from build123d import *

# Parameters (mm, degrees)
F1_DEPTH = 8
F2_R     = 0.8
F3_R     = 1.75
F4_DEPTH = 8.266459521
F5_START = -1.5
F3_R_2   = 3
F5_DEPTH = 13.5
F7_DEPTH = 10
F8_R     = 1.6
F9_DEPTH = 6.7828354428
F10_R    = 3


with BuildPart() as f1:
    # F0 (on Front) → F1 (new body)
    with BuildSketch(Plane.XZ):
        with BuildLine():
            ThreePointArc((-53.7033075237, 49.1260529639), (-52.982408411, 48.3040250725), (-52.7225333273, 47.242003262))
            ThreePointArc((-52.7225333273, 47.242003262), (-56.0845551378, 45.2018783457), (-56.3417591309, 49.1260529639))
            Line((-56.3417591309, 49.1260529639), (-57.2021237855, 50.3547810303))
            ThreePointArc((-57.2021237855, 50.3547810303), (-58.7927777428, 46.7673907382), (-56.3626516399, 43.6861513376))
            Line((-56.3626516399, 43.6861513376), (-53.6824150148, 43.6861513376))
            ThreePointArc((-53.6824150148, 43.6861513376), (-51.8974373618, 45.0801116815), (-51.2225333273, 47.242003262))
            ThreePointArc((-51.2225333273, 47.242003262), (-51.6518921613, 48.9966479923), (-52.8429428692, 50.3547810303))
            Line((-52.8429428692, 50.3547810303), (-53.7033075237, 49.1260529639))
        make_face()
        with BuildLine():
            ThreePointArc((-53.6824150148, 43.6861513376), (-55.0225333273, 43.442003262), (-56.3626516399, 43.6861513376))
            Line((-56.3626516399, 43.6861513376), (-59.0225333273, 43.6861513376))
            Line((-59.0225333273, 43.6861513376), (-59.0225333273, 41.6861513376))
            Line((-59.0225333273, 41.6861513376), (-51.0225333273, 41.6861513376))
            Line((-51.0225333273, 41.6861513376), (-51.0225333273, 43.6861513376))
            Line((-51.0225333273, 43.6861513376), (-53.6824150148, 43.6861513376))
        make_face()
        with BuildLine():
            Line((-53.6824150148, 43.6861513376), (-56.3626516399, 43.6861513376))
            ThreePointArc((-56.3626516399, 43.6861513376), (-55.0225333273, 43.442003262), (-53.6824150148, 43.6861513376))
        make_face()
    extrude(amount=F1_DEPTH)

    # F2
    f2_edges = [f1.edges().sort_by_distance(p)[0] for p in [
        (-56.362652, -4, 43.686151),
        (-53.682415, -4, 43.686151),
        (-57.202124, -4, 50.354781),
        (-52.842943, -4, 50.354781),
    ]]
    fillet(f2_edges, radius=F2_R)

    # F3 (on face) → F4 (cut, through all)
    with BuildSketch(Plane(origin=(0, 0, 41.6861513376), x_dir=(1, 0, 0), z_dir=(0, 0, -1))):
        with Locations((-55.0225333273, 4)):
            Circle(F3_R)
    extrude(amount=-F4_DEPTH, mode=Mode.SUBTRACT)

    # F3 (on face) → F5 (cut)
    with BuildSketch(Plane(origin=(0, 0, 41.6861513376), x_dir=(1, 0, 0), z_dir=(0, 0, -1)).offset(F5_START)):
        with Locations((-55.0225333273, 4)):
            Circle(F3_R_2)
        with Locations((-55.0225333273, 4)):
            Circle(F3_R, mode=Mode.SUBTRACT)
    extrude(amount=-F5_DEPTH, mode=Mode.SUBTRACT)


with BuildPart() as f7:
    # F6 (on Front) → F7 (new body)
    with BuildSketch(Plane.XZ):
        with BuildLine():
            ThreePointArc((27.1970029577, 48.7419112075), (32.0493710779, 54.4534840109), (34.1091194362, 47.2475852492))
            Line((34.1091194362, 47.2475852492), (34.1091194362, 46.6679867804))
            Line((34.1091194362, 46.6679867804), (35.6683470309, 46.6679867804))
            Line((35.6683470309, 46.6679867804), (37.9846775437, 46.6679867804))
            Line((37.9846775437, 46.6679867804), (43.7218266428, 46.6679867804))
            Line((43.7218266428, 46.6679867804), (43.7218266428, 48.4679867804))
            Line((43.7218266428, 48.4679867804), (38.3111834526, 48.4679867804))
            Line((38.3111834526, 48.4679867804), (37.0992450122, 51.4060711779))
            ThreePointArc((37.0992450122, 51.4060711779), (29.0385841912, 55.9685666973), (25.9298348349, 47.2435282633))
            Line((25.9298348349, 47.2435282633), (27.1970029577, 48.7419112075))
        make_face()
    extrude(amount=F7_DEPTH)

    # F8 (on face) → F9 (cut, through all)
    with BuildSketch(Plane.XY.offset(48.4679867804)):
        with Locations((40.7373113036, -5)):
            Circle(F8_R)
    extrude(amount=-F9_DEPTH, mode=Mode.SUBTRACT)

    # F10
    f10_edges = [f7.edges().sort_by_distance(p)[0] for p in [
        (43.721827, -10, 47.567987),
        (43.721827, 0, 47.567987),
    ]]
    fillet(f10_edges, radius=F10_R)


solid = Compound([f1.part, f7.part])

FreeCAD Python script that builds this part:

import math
import FreeCAD as App
import Part
import Sketcher
Q = App.Units.Quantity


def edges_at(feature, points):
    """Names of the edges that pass closest to the given points."""
    edges = feature.Shape.Edges
    near = lambda p: min(range(len(edges)), key=lambda i: edges[i].distToShape(Part.Vertex(*p))[0])
    return sorted({f"Edge{near(p) + 1}" for p in points})

doc = App.newDocument("Part")
body = doc.addObject("PartDesign::Body", "Body")

# Sketch on XZ plane
sketch1 = doc.addObject("Sketcher::SketchObject", "Sketch")
body.addObject(sketch1)
sketch1.AttachmentSupport = (doc.XZ_Plane, [""])
sketch1.MapMode = "FlatFace"
sketch1.addGeometry([
    Part.ArcOfCircle(Part.Circle(App.Vector(-55, 47.2, 0), App.Vector(0, 0, 1), 2.3), math.radians(0), math.radians(55)),  # 0
    Part.ArcOfCircle(Part.Circle(App.Vector(-55, 47.2, 0), App.Vector(0, 0, 1), 2.3), math.radians(125), math.radians(360)),  # 1
    Part.LineSegment(App.Vector(-56.3, 49.1, 0), App.Vector(-57.2, 50.4, 0)),  # 2
    Part.ArcOfCircle(Part.Circle(App.Vector(-55, 47.2, 0), App.Vector(0, 0, 1), 3.8), math.radians(125), math.radians(249)),  # 3
    Part.LineSegment(App.Vector(-56.4, 43.7, 0), App.Vector(-59, 43.7, 0)),  # 4
    Part.LineSegment(App.Vector(-59, 43.7, 0), App.Vector(-59, 41.7, 0)),  # 5
    Part.LineSegment(App.Vector(-59, 41.7, 0), App.Vector(-51, 41.7, 0)),  # 6
    Part.LineSegment(App.Vector(-51, 41.7, 0), App.Vector(-51, 43.7, 0)),  # 7
    Part.LineSegment(App.Vector(-51, 43.7, 0), App.Vector(-53.7, 43.7, 0)),  # 8
    Part.ArcOfCircle(Part.Circle(App.Vector(-55, 47.2, 0), App.Vector(0, 0, 1), 3.8), math.radians(-69), math.radians(0)),  # 9
    Part.ArcOfCircle(Part.Circle(App.Vector(-55, 47.2, 0), App.Vector(0, 0, 1), 3.8), math.radians(0), math.radians(55)),  # 10
    Part.LineSegment(App.Vector(-52.8, 50.4, 0), App.Vector(-53.7, 49.1, 0)),  # 11
], False)
sketch1.addConstraint([
    Sketcher.Constraint("Tangent", 0, 1, 1, 2),
    Sketcher.Constraint("Coincident", 1, 1, 2, 1),
    Sketcher.Constraint("Coincident", 2, 2, 3, 1),
    Sketcher.Constraint("Coincident", 3, 2, 4, 1),
    Sketcher.Constraint("Coincident", 4, 2, 5, 1),
    Sketcher.Constraint("Coincident", 5, 2, 6, 1),
    Sketcher.Constraint("Coincident", 6, 2, 7, 1),
    Sketcher.Constraint("Coincident", 7, 2, 8, 1),
    Sketcher.Constraint("Coincident", 8, 2, 9, 1),
    Sketcher.Constraint("Tangent", 9, 2, 10, 1),
    Sketcher.Constraint("Coincident", 10, 2, 11, 1),
    Sketcher.Constraint("Coincident", 11, 2, 0, 2),
    Sketcher.Constraint("Horizontal", 4),
    Sketcher.Constraint("Vertical", 5),
    Sketcher.Constraint("Horizontal", 6),
    Sketcher.Constraint("Vertical", 7),
    Sketcher.Constraint("Horizontal", 8),
    Sketcher.Constraint("Coincident", 3, 3, 0, 3),
    Sketcher.Constraint("Coincident", 9, 3, 0, 3),
    Sketcher.Constraint("Equal", 0, 1),
    Sketcher.Constraint("Equal", 3, 9),
    Sketcher.Constraint("Equal", 9, 10),
    Sketcher.Constraint("Horizontal", 10, 3, 0, 1),
    Sketcher.Constraint("Horizontal", 4, 2, 7, 2),
    Sketcher.Constraint("Horizontal", 0, 1, 9, 2),
    Sketcher.Constraint("Horizontal", 2, 2, 10, 2),
    Sketcher.Constraint("Horizontal", 1, 1, 11, 2),
    Sketcher.Constraint("Equal", 4, 8),
    Sketcher.Constraint("Radius", 0, 2.3),
    Sketcher.Constraint("Radius", 3, 3.8),
    Sketcher.Constraint("DistanceX", 6, 1, 6, 2, 8.0),
    Sketcher.Constraint("DistanceY", 5, 2, 5, 1, 2.0),
    Sketcher.Constraint("Angle", 2, Q("125 deg")),
    Sketcher.Constraint("DistanceX", 4, 2, 4, 1, 2.659882),
    Sketcher.Constraint("DistanceX", 1, 1, -1, 1, 56.341759),
    Sketcher.Constraint("DistanceY", -1, 1, 2, 2, 50.354781),
    Sketcher.Constraint("DistanceX", 3, 2, -1, 1, 56.362652),
])
pad1 = doc.addObject("PartDesign::Pad", "Pad")
body.addObject(pad1)
pad1.Profile = sketch1
pad1.Length = 8
doc.recompute()

fillet = doc.addObject("PartDesign::Fillet", "Fillet")
body.addObject(fillet)
fillet.Base = (pad1, edges_at(pad1, [
    (-56.363, -4, 43.686),
    (-53.682, -4, 43.686),
    (-57.202, -4, 50.355),
    (-52.843, -4, 50.355),
]))
fillet.Radius = 0.8

# Sketch on XY plane
sketch2 = doc.addObject("Sketcher::SketchObject", "Sketch001")
body.addObject(sketch2)
sketch2.AttachmentSupport = (doc.XY_Plane, [""])
sketch2.MapMode = "FlatFace"
sketch2.AttachmentOffset = App.Placement(App.Vector(0, 0, 41.686151), App.Rotation())
sketch2.addGeometry(Part.Circle(App.Vector(-55, -4, 0), App.Vector(0, 0, 1), 1.8), False)
sketch2.addConstraint([
    Sketcher.Constraint("Diameter", 0, 3.5),
    Sketcher.Constraint("DistanceY", 0, 3, -1, 1, 4.0),
    Sketcher.Constraint("DistanceX", 0, 3, -1, 1, 55.022533),
])
pocket1 = doc.addObject("PartDesign::Pocket", "Pocket")
body.addObject(pocket1)
pocket1.Profile = sketch2
pocket1.Type = "ThroughAll"
pocket1.Reversed = True

# Sketch on XY plane
sketch3 = doc.addObject("Sketcher::SketchObject", "Sketch002")
body.addObject(sketch3)
sketch3.AttachmentSupport = (doc.XY_Plane, [""])
sketch3.MapMode = "FlatFace"
sketch3.AttachmentOffset = App.Placement(App.Vector(0, 0, 43.186151), App.Rotation())
sketch3.addGeometry([
    Part.Circle(App.Vector(-55, -4, 0), App.Vector(0, 0, 1), 3),
    Part.Circle(App.Vector(-55, -4, 0), App.Vector(0, 0, 1), 1.8),
], False)
sketch3.addConstraint([
    Sketcher.Constraint("Coincident", 1, 3, 0, 3),
    Sketcher.Constraint("Diameter", 0, 6.0),
    Sketcher.Constraint("Diameter", 1, 3.5),
    Sketcher.Constraint("DistanceY", 0, 3, -1, 1, 4.0),
    Sketcher.Constraint("DistanceX", 0, 3, -1, 1, 55.022533),
])
pocket2 = doc.addObject("PartDesign::Pocket", "Pocket001")
body.addObject(pocket2)
pocket2.Profile = sketch3
pocket2.Length = 13.5
pocket2.Reversed = True
body2 = doc.addObject("PartDesign::Body", "Body001")

# Sketch on XZ plane
sketch4 = doc.addObject("Sketcher::SketchObject", "Sketch003")
body2.addObject(sketch4)
sketch4.AttachmentSupport = (doc.getObject("XZ_Plane001"), [""])
sketch4.MapMode = "FlatFace"
sketch4.addGeometry([
    Part.ArcOfCircle(Part.Circle(App.Vector(31.2, 50.3, 0), App.Vector(0, 0, 1), 4.2), math.radians(-46), math.radians(201)),  # 0
    Part.LineSegment(App.Vector(34.1, 47.2, 0), App.Vector(34.1, 46.7, 0)),  # 1
    Part.LineSegment(App.Vector(34.1, 46.7, 0), App.Vector(43.7, 46.7, 0)),  # 2
    Part.LineSegment(App.Vector(43.7, 46.7, 0), App.Vector(43.7, 48.5, 0)),  # 3
    Part.LineSegment(App.Vector(43.7, 48.5, 0), App.Vector(38.3, 48.5, 0)),  # 4
    Part.LineSegment(App.Vector(38.3, 48.5, 0), App.Vector(37.1, 51.4, 0)),  # 5
    Part.ArcOfCircle(Part.Circle(App.Vector(31.2, 50.3, 0), App.Vector(0, 0, 1), 6), math.radians(11), math.radians(210)),  # 6
    Part.LineSegment(App.Vector(25.9, 47.2, 0), App.Vector(27.2, 48.7, 0)),  # 7
], False)
sketch4.addConstraint([
    Sketcher.Constraint("Coincident", 0, 1, 1, 1),
    Sketcher.Constraint("Coincident", 1, 2, 2, 1),
    Sketcher.Constraint("Coincident", 2, 2, 3, 1),
    Sketcher.Constraint("Coincident", 3, 2, 4, 1),
    Sketcher.Constraint("Coincident", 4, 2, 5, 1),
    Sketcher.Constraint("Coincident", 5, 2, 6, 1),
    Sketcher.Constraint("Coincident", 6, 2, 7, 1),
    Sketcher.Constraint("Coincident", 7, 2, 0, 2),
    Sketcher.Constraint("Vertical", 1),
    Sketcher.Constraint("Horizontal", 2),
    Sketcher.Constraint("Vertical", 3),
    Sketcher.Constraint("Horizontal", 4),
    Sketcher.Constraint("Coincident", 6, 3, 0, 3),
    Sketcher.Constraint("Radius", 0, 4.25),
    Sketcher.Constraint("Radius", 6, 6.05),
    Sketcher.Constraint("DistanceY", 3, 1, 3, 2, 1.8),
    Sketcher.Constraint("DistanceY", 1, 2, 1, 1, 0.579598),
    Sketcher.Constraint("Distance", 5, 3.178228),
    Sketcher.Constraint("DistanceX", 2, 1, 2, 2, 9.612707),
    Sketcher.Constraint("DistanceX", 4, 2, 4, 1, 5.410643),
    Sketcher.Constraint("DistanceY", -1, 1, 0, 3, 50.299451),
    Sketcher.Constraint("DistanceX", -1, 1, 0, 1, 34.109119),
    Sketcher.Constraint("DistanceY", -1, 1, 5, 2, 51.406071),
    Sketcher.Constraint("DistanceY", -1, 1, 6, 2, 47.243528),
    Sketcher.Constraint("DistanceY", -1, 1, 7, 2, 48.741911),
])
pad2 = doc.addObject("PartDesign::Pad", "Pad001")
body2.addObject(pad2)
pad2.Profile = sketch4
pad2.Length = 10

# Sketch on XY plane
sketch5 = doc.addObject("Sketcher::SketchObject", "Sketch004")
body2.addObject(sketch5)
sketch5.AttachmentSupport = (doc.getObject("XY_Plane001"), [""])
sketch5.MapMode = "FlatFace"
sketch5.AttachmentOffset = App.Placement(App.Vector(0, 0, 48.467987), App.Rotation())
sketch5.addGeometry(Part.Circle(App.Vector(40.7, -5, 0), App.Vector(0, 0, 1), 1.6), False)
sketch5.addConstraint([
    Sketcher.Constraint("Diameter", 0, 3.2),
    Sketcher.Constraint("DistanceY", 0, 3, -1, 1, 5.0),
    Sketcher.Constraint("DistanceX", -1, 1, 0, 3, 40.737311),
])
pocket3 = doc.addObject("PartDesign::Pocket", "Pocket002")
body2.addObject(pocket3)
pocket3.Profile = sketch5
pocket3.Type = "ThroughAll"
doc.recompute()

fillet2 = doc.addObject("PartDesign::Fillet", "Fillet001")
body2.addObject(fillet2)
fillet2.Base = (pocket3, edges_at(pocket3, [(43.722, -10, 47.568), (43.722, 0, 47.568)]))
fillet2.Radius = 3

doc.recompute()
